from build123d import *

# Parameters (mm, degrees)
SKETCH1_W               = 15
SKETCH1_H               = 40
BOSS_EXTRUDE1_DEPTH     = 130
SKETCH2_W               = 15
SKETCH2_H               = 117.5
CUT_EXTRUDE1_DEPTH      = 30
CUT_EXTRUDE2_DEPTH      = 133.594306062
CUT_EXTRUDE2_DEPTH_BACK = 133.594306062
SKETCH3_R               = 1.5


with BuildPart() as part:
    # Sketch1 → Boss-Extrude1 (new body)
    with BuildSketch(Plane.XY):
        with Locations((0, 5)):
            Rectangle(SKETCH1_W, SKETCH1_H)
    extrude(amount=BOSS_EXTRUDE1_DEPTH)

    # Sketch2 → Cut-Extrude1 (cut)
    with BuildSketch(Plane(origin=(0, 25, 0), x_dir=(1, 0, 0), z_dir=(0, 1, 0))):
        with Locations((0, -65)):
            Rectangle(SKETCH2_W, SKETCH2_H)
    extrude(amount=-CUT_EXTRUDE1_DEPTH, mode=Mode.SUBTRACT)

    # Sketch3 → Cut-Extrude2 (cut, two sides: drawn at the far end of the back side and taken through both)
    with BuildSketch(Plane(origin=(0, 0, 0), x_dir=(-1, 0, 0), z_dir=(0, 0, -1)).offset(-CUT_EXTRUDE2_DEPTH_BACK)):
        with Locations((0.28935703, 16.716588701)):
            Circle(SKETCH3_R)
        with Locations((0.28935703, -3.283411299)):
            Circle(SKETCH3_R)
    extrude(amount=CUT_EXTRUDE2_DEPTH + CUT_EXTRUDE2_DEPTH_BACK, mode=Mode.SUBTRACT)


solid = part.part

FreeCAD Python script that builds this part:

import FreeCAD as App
import Part
import Sketcher

V = App.Vector
Q = App.Units.Quantity

doc = App.newDocument("Part")
body = doc.addObject("PartDesign::Body", "Body")

# Sketch on XY plane
sketch1 = doc.addObject("Sketcher::SketchObject", "Sketch")
body.addObject(sketch1)
sketch1.AttachmentSupport = (doc.XY_Plane, [""])
sketch1.MapMode = "FlatFace"
sketch1.addGeometry(Part.LineSegment(V(-8, 25, 0), V(-8, -15, 0)), False)
sketch1.addGeometry(Part.LineSegment(V(-8, -15, 0), V(8, -15, 0)), False)
sketch1.addGeometry(Part.LineSegment(V(8, -15, 0), V(8, 25, 0)), False)
sketch1.addGeometry(Part.LineSegment(V(8, 25, 0), V(-8, 25, 0)), False)
sketch1.addConstraint(Sketcher.Constraint("Coincident", 0, 2, 1, 1))
sketch1.addConstraint(Sketcher.Constraint("Coincident", 1, 2, 2, 1))
sketch1.addConstraint(Sketcher.Constraint("Coincident", 2, 2, 3, 1))
sketch1.addConstraint(Sketcher.Constraint("Coincident", 3, 2, 0, 1))
sketch1.addConstraint(Sketcher.Constraint("Vertical", 0))
sketch1.addConstraint(Sketcher.Constraint("Horizontal", 1))
sketch1.addConstraint(Sketcher.Constraint("Vertical", 2))
sketch1.addConstraint(Sketcher.Constraint("Horizontal", 3))
sketch1.addConstraint(Sketcher.Constraint("DistanceX", 1, 1, 1, 2, Q("15 mm")))
sketch1.addConstraint(Sketcher.Constraint("DistanceY", 0, 2, 0, 1, Q("40 mm")))
sketch1.addConstraint(Sketcher.Constraint("DistanceY", 0, 2, -1, 1, Q("15 mm")))
sketch1.addConstraint(Sketcher.Constraint("DistanceX", 0, 2, -1, 1, Q("7.5 mm")))
pad1 = doc.addObject("PartDesign::Pad", "Pad")
body.addObject(pad1)
pad1.Profile = sketch1
pad1.Length = 130

# Sketch on XZ plane
sketch2 = doc.addObject("Sketcher::SketchObject", "Sketch001")
body.addObject(sketch2)
sketch2.AttachmentSupport = (doc.XZ_Plane, [""])
sketch2.MapMode = "FlatFace"
sketch2.AttachmentOffset = App.Placement(V(0, 0, -25), App.Rotation())
sketch2.addGeometry(Part.LineSegment(V(-8, 6, 0), V(-8, 124, 0)), False)
sketch2.addGeometry(Part.LineSegment(V(-8, 124, 0), V(8, 124, 0)), False)
sketch2.addGeometry(Part.LineSegment(V(8, 124, 0), V(8, 6, 0)), False)
sketch2.addGeometry(Part.LineSegment(V(8, 6, 0), V(-8, 6, 0)), False)
sketch2.addConstraint(Sketcher.Constraint("Coincident", 0, 2, 1, 1))
sketch2.addConstraint(Sketcher.Constraint("Coincident", 1, 2, 2, 1))
sketch2.addConstraint(Sketcher.Constraint("Coincident", 2, 2, 3, 1))
sketch2.addConstraint(Sketcher.Constraint("Coincident", 3, 2, 0, 1))
sketch2.addConstraint(Sketcher.Constraint("Vertical", 0))
sketch2.addConstraint(Sketcher.Constraint("Horizontal", 1))
sketch2.addConstraint(Sketcher.Constraint("Vertical", 2))
sketch2.addConstraint(Sketcher.Constraint("Horizontal", 3))
sketch2.addConstraint(Sketcher.Constraint("DistanceX", 1, 1, 1, 2, Q("15 mm")))
sketch2.addConstraint(Sketcher.Constraint("DistanceY", 0, 1, 0, 2, Q("117.5 mm")))
sketch2.addConstraint(Sketcher.Constraint("DistanceX", 0, 2, -1, 1, Q("7.5 mm")))
sketch2.addConstraint(Sketcher.Constraint("DistanceY", -1, 1, 0, 2, Q("123.75 mm")))
pocket1 = doc.addObject("PartDesign::Pocket", "Pocket")
body.addObject(pocket1)
pocket1.Profile = sketch2
pocket1.Length = 30
pocket1.Reversed = True

# Sketch on XY plane
sketch3 = doc.addObject("Sketcher::SketchObject", "Sketch002")
body.addObject(sketch3)
sketch3.AttachmentSupport = (doc.XY_Plane, [""])
sketch3.MapMode = "FlatFace"
sketch3.addGeometry(Part.Circle(V(-0.3, 16.7, 0), V(0, 0, 1), 1.5), False)
sketch3.addGeometry(Part.Circle(V(-0.3, -3.3, 0), V(0, 0, 1), 1.5), False)
sketch3.addConstraint(Sketcher.Constraint("Equal", 0, 1))
sketch3.addConstraint(Sketcher.Constraint("Vertical", 0, 3, 1, 3))
sketch3.addConstraint(Sketcher.Constraint("Diameter", 0, Q("3 mm")))
sketch3.addConstraint(Sketcher.Constraint("DistanceY", 1, 3, 0, 3, Q("20 mm")))
sketch3.addConstraint(Sketcher.Constraint("DistanceY", -1, 1, 0, 3, Q("16.716589 mm")))
sketch3.addConstraint(Sketcher.Constraint("DistanceX", 0, 3, -1, 1, Q("0.289357 mm")))
pocket2 = doc.addObject("PartDesign::Pocket", "Pocket001")
body.addObject(pocket2)
pocket2.Profile = sketch3
pocket2.Type = "ThroughAll"
pocket2.Midplane = True

doc.recompute()
